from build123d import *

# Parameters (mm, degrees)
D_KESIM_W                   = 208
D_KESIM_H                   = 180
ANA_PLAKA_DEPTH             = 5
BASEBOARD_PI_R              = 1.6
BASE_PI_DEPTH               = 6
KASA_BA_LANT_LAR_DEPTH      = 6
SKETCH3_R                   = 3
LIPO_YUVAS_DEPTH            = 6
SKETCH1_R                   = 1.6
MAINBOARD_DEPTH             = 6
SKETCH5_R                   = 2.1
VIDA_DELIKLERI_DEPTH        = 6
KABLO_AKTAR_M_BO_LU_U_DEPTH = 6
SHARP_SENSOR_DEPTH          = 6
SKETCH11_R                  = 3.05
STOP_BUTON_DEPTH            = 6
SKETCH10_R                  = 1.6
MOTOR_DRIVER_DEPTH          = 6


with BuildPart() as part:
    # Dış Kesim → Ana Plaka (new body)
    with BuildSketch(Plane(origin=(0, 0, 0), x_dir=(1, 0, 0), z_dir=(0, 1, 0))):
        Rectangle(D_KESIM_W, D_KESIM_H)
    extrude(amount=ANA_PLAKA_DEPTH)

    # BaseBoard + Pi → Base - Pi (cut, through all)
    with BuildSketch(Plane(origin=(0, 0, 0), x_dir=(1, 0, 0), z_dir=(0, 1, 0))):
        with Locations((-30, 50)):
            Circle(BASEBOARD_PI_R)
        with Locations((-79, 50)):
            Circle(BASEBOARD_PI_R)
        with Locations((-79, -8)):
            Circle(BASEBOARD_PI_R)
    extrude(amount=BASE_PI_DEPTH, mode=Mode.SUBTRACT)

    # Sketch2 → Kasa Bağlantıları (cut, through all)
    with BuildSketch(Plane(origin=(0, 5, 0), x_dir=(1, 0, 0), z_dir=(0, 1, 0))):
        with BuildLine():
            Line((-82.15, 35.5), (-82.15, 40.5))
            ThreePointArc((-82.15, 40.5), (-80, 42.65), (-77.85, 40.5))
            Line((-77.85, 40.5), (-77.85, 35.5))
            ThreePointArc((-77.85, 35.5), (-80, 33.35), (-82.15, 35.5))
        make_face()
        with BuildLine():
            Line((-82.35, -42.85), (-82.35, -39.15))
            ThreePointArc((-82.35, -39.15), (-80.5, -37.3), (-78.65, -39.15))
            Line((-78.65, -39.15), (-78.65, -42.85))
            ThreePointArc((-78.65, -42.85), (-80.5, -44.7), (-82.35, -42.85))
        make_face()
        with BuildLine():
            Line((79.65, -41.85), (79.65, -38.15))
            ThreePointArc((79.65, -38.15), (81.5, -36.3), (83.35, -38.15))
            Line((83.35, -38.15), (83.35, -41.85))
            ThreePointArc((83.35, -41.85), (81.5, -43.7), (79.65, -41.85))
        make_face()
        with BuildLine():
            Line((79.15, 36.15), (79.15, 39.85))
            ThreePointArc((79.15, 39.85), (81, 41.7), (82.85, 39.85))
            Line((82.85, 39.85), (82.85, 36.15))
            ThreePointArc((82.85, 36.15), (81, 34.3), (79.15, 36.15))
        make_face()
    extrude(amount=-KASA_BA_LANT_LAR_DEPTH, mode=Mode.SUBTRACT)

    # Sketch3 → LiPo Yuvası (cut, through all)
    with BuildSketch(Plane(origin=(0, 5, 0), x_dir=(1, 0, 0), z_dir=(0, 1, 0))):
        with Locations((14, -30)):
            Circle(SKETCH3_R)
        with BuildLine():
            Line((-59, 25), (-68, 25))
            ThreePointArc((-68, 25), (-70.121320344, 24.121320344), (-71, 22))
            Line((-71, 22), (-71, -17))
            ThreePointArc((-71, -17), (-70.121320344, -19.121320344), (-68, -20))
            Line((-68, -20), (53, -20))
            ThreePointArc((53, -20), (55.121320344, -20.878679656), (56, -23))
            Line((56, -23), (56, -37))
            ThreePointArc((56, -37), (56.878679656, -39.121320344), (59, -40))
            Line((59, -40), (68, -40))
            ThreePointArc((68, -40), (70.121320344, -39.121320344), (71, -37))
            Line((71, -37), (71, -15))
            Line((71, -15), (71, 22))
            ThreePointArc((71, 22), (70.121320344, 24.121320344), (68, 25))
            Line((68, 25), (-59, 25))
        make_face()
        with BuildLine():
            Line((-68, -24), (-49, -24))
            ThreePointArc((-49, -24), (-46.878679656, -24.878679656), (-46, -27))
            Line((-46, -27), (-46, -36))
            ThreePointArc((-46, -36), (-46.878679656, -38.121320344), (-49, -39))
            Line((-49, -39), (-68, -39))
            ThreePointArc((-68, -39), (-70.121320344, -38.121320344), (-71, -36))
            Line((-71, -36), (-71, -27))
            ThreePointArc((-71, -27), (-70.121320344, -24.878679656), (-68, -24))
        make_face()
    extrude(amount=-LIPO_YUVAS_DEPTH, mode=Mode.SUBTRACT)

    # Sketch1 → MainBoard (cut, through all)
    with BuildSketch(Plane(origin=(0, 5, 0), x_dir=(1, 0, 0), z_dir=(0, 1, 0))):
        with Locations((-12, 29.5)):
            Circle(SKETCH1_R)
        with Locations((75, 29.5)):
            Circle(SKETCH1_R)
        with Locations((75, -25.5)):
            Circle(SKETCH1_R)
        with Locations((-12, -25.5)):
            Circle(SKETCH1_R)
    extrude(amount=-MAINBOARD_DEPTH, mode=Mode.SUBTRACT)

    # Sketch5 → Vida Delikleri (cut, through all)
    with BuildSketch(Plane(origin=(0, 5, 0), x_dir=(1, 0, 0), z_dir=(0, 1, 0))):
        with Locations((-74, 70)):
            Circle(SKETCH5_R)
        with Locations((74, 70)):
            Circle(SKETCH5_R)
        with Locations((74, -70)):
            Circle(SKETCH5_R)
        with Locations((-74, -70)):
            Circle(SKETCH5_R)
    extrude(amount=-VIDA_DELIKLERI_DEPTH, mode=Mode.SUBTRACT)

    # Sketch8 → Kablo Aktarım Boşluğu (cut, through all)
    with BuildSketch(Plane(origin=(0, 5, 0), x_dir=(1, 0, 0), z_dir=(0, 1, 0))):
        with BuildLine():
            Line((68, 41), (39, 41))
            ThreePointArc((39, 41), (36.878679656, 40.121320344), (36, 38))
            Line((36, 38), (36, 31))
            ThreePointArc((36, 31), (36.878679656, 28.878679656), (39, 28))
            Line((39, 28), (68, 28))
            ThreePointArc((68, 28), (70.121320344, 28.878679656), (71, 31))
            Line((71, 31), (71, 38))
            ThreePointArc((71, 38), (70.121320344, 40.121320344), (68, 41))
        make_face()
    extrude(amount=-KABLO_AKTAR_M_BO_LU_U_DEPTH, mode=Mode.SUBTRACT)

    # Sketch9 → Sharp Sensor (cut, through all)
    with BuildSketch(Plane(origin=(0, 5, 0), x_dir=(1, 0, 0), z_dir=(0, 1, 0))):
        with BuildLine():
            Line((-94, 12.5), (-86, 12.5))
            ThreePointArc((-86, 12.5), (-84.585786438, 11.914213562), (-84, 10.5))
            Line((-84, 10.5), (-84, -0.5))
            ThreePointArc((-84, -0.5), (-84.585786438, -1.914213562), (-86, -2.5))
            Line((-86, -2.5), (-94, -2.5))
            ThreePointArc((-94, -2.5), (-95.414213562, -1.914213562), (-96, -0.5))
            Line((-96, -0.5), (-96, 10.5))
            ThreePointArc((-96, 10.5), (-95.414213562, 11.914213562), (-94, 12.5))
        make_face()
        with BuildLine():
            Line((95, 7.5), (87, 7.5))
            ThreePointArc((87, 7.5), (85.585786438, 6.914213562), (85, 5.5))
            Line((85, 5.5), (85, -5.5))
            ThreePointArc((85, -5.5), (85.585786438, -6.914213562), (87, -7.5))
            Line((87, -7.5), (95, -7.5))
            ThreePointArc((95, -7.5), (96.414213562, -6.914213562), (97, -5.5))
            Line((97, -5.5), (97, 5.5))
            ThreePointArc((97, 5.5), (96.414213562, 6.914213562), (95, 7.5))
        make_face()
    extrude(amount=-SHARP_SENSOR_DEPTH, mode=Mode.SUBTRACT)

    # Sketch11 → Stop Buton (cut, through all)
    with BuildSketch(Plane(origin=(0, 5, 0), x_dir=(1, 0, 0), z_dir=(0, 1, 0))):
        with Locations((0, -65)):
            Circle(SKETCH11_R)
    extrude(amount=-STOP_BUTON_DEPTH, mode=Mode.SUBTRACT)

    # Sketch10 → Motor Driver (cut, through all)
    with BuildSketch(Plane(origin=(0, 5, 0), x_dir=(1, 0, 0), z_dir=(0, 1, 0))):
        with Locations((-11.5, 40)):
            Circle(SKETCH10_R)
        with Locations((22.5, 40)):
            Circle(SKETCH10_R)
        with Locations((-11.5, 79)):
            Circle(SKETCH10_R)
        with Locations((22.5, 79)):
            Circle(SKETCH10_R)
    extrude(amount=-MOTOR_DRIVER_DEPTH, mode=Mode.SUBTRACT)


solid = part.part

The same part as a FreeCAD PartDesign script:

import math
import FreeCAD as App
import Part
import Sketcher


def add_polygon(sketch, points):
    """Adds a closed chain of lines whose ends are joined by coincident constraints."""
    first, n = sketch.GeometryCount, len(points)
    for a, b in zip(points, points[1:] + points[:1]):
        sketch.addGeometry(Part.LineSegment(App.Vector(*a, 0), App.Vector(*b, 0)), False)
    for i in range(n):
        sketch.addConstraint(Sketcher.Constraint("Coincident", first + i, 2, first + (i + 1) % n, 1))

doc = App.newDocument("Part")
params = doc.addObject("Spreadsheet::Sheet", "Params")
for row, (alias, value) in enumerate([
    ("sketch1_width", "208 mm"),
    ("sketch1_height", "180 mm"),
    ("pad1_length", "5 mm"),
    ("sketch2_diameter", "3.2 mm"),
    ("sketch3_height", "5 mm"),
    ("sketch3_radius", "2.15 mm"),
    ("sketch3_radius2", "1.85 mm"),
    ("sketch3_height2", "3.7 mm"),
    ("sketch4_diameter", "6 mm"),
    ("sketch4_width", "121 mm"),
    ("sketch4_width2", "9 mm"),
    ("sketch4_width3", "19 mm"),
    ("sketch4_height", "39 mm"),
    ("sketch5_diameter", "3.2 mm"),
    ("sketch6_diameter", "4.2 mm"),
    ("sketch7_radius", "3 mm"),
    ("sketch7_width", "29 mm"),
    ("sketch7_height", "7 mm"),
    ("sketch8_radius", "2 mm"),
    ("sketch8_width", "8 mm"),
    ("sketch8_height", "11 mm"),
    ("sketch9_diameter", "6.1 mm"),
    ("sketch10_diameter", "3.2 mm"),
], start=1):
    params.set(f"A{row}", alias)
    params.set(f"B{row}", "=" + value)
    params.setAlias(f"B{row}", alias)

body = doc.addObject("PartDesign::Body", "Body")

# Sketch on XZ plane
sketch1 = body.newObject("Sketcher::SketchObject", "Sketch")
sketch1.AttachmentSupport = (doc.getObject("XZ_Plane"), [""])
sketch1.MapMode = "FlatFace"
add_polygon(sketch1, [(-104, -90), (-104, 90), (104, 90), (104, -90)])  # lines 0-3
sketch1.addConstraint([
    Sketcher.Constraint("Vertical", 0),
    Sketcher.Constraint("Horizontal", 1),
    Sketcher.Constraint("Vertical", 2),
    Sketcher.Constraint("Horizontal", 3),
    Sketcher.Constraint("Symmetric", 0, 2, 2, 2, -1, 1),
    Sketcher.Constraint("DistanceX", 1, 1, 1, 2, 208.0),
    Sketcher.Constraint("DistanceY", 0, 1, 0, 2, 180.0),
])
sketch1.setExpression("Constraints[9]", "Params.sketch1_width")
sketch1.setExpression("Constraints[10]", "Params.sketch1_height")
pad1 = body.newObject("PartDesign::Pad", "Pad")
pad1.Profile = sketch1
pad1.setExpression("Length", "Params.pad1_length")
pad1.Reversed = True

# Sketch on XZ plane
sketch2 = body.newObject("Sketcher::SketchObject", "Sketch001")
sketch2.AttachmentSupport = (doc.getObject("XZ_Plane"), [""])
sketch2.MapMode = "FlatFace"
sketch2.addGeometry([
    Part.Circle(App.Vector(-30, -50, 0), App.Vector(0, 0, 1), 1.6),
    Part.Circle(App.Vector(-79, -50, 0), App.Vector(0, 0, 1), 1.6),
    Part.Circle(App.Vector(-79, 8, 0), App.Vector(0, 0, 1), 1.6),
], False)
sketch2.addConstraint([
    Sketcher.Constraint("Equal", 0, 1),
    Sketcher.Constraint("Equal", 1, 2),
    Sketcher.Constraint("Horizontal", 0, 3, 1, 3),
    Sketcher.Constraint("Vertical", 1, 3, 2, 3),
    Sketcher.Constraint("Diameter", 0, 3.2),
    Sketcher.Constraint("DistanceX", 0, 3, -1, 1, 30.0),
    Sketcher.Constraint("DistanceY", 0, 3, -1, 1, 50.0),
    Sketcher.Constraint("DistanceX", 1, 3, -1, 1, 79.0),
    Sketcher.Constraint("DistanceY", -1, 1, 2, 3, 8.0),
])
sketch2.setExpression("Constraints[4]", "Params.sketch2_diameter")
pocket1 = body.newObject("PartDesign::Pocket", "Pocket")
pocket1.Profile = sketch2
pocket1.Type = "ThroughAll"

# Sketch on XZ plane
sketch3 = body.newObject("Sketcher::SketchObject", "Sketch002")
sketch3.AttachmentSupport = (doc.getObject("XZ_Plane"), [""])
sketch3.MapMode = "FlatFace"
sketch3.AttachmentOffset = App.Placement(App.Vector(0, 0, -5), App.Rotation())
sketch3.addGeometry([
    Part.LineSegment(App.Vector(-82.2, -40.5, 0), App.Vector(-82.2, -35.5, 0)),  # 0
    Part.ArcOfCircle(Part.Circle(App.Vector(-80, -35.5, 0), App.Vector(0, 0, 1), 2.1), math.radians(0), math.radians(180)),  # 1
    Part.LineSegment(App.Vector(-77.8, -35.5, 0), App.Vector(-77.8, -40.5, 0)),  # 2
    Part.ArcOfCircle(Part.Circle(App.Vector(-80, -40.5, 0), App.Vector(0, 0, 1), 2.1), math.radians(180), math.radians(360)),  # 3
    Part.LineSegment(App.Vector(-82.3, 39.1, 0), App.Vector(-82.3, 42.9, 0)),  # 4
    Part.ArcOfCircle(Part.Circle(App.Vector(-80.5, 42.9, 0), App.Vector(0, 0, 1), 1.9), math.radians(0), math.radians(180)),  # 5
    Part.LineSegment(App.Vector(-78.7, 42.9, 0), App.Vector(-78.7, 39.1, 0)),  # 6
    Part.ArcOfCircle(Part.Circle(App.Vector(-80.5, 39.1, 0), App.Vector(0, 0, 1), 1.9), math.radians(180), math.radians(360)),  # 7
    Part.LineSegment(App.Vector(79.7, 38.1, 0), App.Vector(79.7, 41.9, 0)),  # 8
    Part.ArcOfCircle(Part.Circle(App.Vector(81.5, 41.9, 0), App.Vector(0, 0, 1), 1.9), math.radians(0), math.radians(180)),  # 9
    Part.LineSegment(App.Vector(83.3, 41.9, 0), App.Vector(83.3, 38.1, 0)),  # 10
    Part.ArcOfCircle(Part.Circle(App.Vector(81.5, 38.1, 0), App.Vector(0, 0, 1), 1.9), math.radians(180), math.radians(360)),  # 11
    Part.LineSegment(App.Vector(79.2, -39.9, 0), App.Vector(79.2, -36.1, 0)),  # 12
    Part.ArcOfCircle(Part.Circle(App.Vector(81, -36.1, 0), App.Vector(0, 0, 1), 1.9), math.radians(0), math.radians(180)),  # 13
    Part.LineSegment(App.Vector(82.8, -36.1, 0), App.Vector(82.8, -39.9, 0)),  # 14
    Part.ArcOfCircle(Part.Circle(App.Vector(81, -39.9, 0), App.Vector(0, 0, 1), 1.9), math.radians(180), math.radians(360)),  # 15
], False)
sketch3.addConstraint([
    Sketcher.Constraint("Tangent", 0, 2, 1, 2),
    Sketcher.Constraint("Tangent", 1, 1, 2, 1),
    Sketcher.Constraint("Tangent", 2, 2, 3, 2),
    Sketcher.Constraint("Tangent", 3, 1, 0, 1),
    Sketcher.Constraint("Tangent", 4, 2, 5, 2),
    Sketcher.Constraint("Tangent", 5, 1, 6, 1),
    Sketcher.Constraint("Tangent", 6, 2, 7, 2),
    Sketcher.Constraint("Tangent", 7, 1, 4, 1),
    Sketcher.Constraint("Tangent", 8, 2, 9, 2),
    Sketcher.Constraint("Tangent", 9, 1, 10, 1),
    Sketcher.Constraint("Tangent", 10, 2, 11, 2),
    Sketcher.Constraint("Tangent", 11, 1, 8, 1),
    Sketcher.Constraint("Tangent", 12, 2, 13, 2),
    Sketcher.Constraint("Tangent", 13, 1, 14, 1),
    Sketcher.Constraint("Tangent", 14, 2, 15, 2),
    Sketcher.Constraint("Tangent", 15, 1, 12, 1),
    Sketcher.Constraint("Vertical", 0),
    Sketcher.Constraint("Vertical", 2),
    Sketcher.Constraint("Vertical", 4),
    Sketcher.Constraint("Vertical", 6),
    Sketcher.Constraint("Vertical", 8),
    Sketcher.Constraint("Vertical", 10),
    Sketcher.Constraint("Vertical", 12),
    Sketcher.Constraint("Vertical", 14),
    Sketcher.Constraint("Equal", 7, 9),
    Sketcher.Constraint("Equal", 11, 13),
    Sketcher.Constraint("Equal", 6, 8),
    Sketcher.Constraint("Equal", 10, 12),
    Sketcher.Constraint("DistanceY", 0, 1, 0, 2, 5.0),
    Sketcher.Constraint("Radius", 1, 2.15),
    Sketcher.Constraint("Radius", 5, 1.85),
    Sketcher.Constraint("DistanceY", 4, 1, 4, 2, 3.7),
    Sketcher.Constraint("DistanceX", 1, 3, -1, 1, 80.0),
    Sketcher.Constraint("DistanceX", -1, 1, 13, 3, 81.0),
    Sketcher.Constraint("DistanceX", 5, 3, 9, 3, 162.0),
    Sketcher.Constraint("DistanceY", 9, 3, 5, 3, 1.0),
    Sketcher.Constraint("DistanceY", 13, 3, 9, 3, 78.0),
    Sketcher.Constraint("DistanceY", 1, 3, -1, 1, 35.5),
    Sketcher.Constraint("DistanceX", 5, 3, -1, 1, 80.5),
    Sketcher.Constraint("DistanceY", -1, 1, 5, 3, 42.85),
])
sketch3.setExpression("Constraints[28]", "Params.sketch3_height")
sketch3.setExpression("Constraints[29]", "Params.sketch3_radius")
sketch3.setExpression("Constraints[30]", "Params.sketch3_radius2")
sketch3.setExpression("Constraints[31]", "Params.sketch3_height2")
pocket2 = body.newObject("PartDesign::Pocket", "Pocket001")
pocket2.Profile = sketch3
pocket2.Type = "ThroughAll"
pocket2.Reversed = True

# Sketch on XZ plane
sketch4 = body.newObject("Sketcher::SketchObject", "Sketch003")
sketch4.AttachmentSupport = (doc.getObject("XZ_Plane"), [""])
sketch4.MapMode = "FlatFace"
sketch4.AttachmentOffset = App.Placement(App.Vector(0, 0, -5), App.Rotation())
sketch4.addGeometry([
    Part.Circle(App.Vector(14, 30, 0), App.Vector(0, 0, 1), 3),  # 0
    Part.ArcOfCircle(Part.Circle(App.Vector(-68, -22, 0), App.Vector(0, 0, 1), 3), math.radians(180), math.radians(270)),  # 1
    Part.LineSegment(App.Vector(-71, -22, 0), App.Vector(-71, 17, 0)),  # 2
    Part.ArcOfCircle(Part.Circle(App.Vector(-68, 17, 0), App.Vector(0, 0, 1), 3), math.radians(90), math.radians(180)),  # 3
    Part.LineSegment(App.Vector(-68, 20, 0), App.Vector(53, 20, 0)),  # 4
    Part.ArcOfCircle(Part.Circle(App.Vector(53, 23, 0), App.Vector(0, 0, 1), 3), math.radians(-90), math.radians(0)),  # 5
    Part.LineSegment(App.Vector(56, 23, 0), App.Vector(56, 37, 0)),  # 6
    Part.ArcOfCircle(Part.Circle(App.Vector(59, 37, 0), App.Vector(0, 0, 1), 3), math.radians(90), math.radians(180)),  # 7
    Part.LineSegment(App.Vector(59, 40, 0), App.Vector(68, 40, 0)),  # 8
    Part.ArcOfCircle(Part.Circle(App.Vector(68, 37, 0), App.Vector(0, 0, 1), 3), math.radians(0), math.radians(90)),  # 9
    Part.LineSegment(App.Vector(71, 37, 0), App.Vector(71, -22, 0)),  # 10
    Part.ArcOfCircle(Part.Circle(App.Vector(68, -22, 0), App.Vector(0, 0, 1), 3), math.radians(-90), math.radians(0)),  # 11
    Part.LineSegment(App.Vector(68, -25, 0), App.Vector(-68, -25, 0)),  # 12
    Part.LineSegment(App.Vector(-49, 24, 0), App.Vector(-68, 24, 0)),  # 13
    Part.ArcOfCircle(Part.Circle(App.Vector(-68, 27, 0), App.Vector(0, 0, 1), 3), math.radians(180), math.radians(270)),  # 14
    Part.LineSegment(App.Vector(-71, 27, 0), App.Vector(-71, 36, 0)),  # 15
    Part.ArcOfCircle(Part.Circle(App.Vector(-68, 36, 0), App.Vector(0, 0, 1), 3), math.radians(90), math.radians(180)),  # 16
    Part.LineSegment(App.Vector(-68, 39, 0), App.Vector(-49, 39, 0)),  # 17
    Part.ArcOfCircle(Part.Circle(App.Vector(-49, 36, 0), App.Vector(0, 0, 1), 3), math.radians(0), math.radians(90)),  # 18
    Part.LineSegment(App.Vector(-46, 36, 0), App.Vector(-46, 27, 0)),  # 19
    Part.ArcOfCircle(Part.Circle(App.Vector(-49, 27, 0), App.Vector(0, 0, 1), 3), math.radians(-90), math.radians(0)),  # 20
], False)
sketch4.addConstraint([
    Sketcher.Constraint("Tangent", 1, 1, 2, 1),
    Sketcher.Constraint("Tangent", 2, 2, 3, 2),
    Sketcher.Constraint("Tangent", 3, 1, 4, 1),
    Sketcher.Constraint("Tangent", 4, 2, 5, 1),
    Sketcher.Constraint("Tangent", 5, 2, 6, 1),
    Sketcher.Constraint("Tangent", 6, 2, 7, 2),
    Sketcher.Constraint("Tangent", 7, 1, 8, 1),
    Sketcher.Constraint("Tangent", 8, 2, 9, 2),
    Sketcher.Constraint("Tangent", 9, 1, 10, 1),
    Sketcher.Constraint("Tangent", 10, 2, 11, 2),
    Sketcher.Constraint("Tangent", 11, 1, 12, 1),
    Sketcher.Constraint("Tangent", 12, 2, 1, 2),
    Sketcher.Constraint("Tangent", 13, 2, 14, 2),
    Sketcher.Constraint("Tangent", 14, 1, 15, 1),
    Sketcher.Constraint("Tangent", 15, 2, 16, 2),
    Sketcher.Constraint("Tangent", 16, 1, 17, 1),
    Sketcher.Constraint("Tangent", 17, 2, 18, 2),
    Sketcher.Constraint("Tangent", 18, 1, 19, 1),
    Sketcher.Constraint("Tangent", 19, 2, 20, 2),
    Sketcher.Constraint("Tangent", 20, 1, 13, 1),
    Sketcher.Constraint("Vertical", 2),
    Sketcher.Constraint("Horizontal", 4),
    Sketcher.Constraint("Vertical", 6),
    Sketcher.Constraint("Horizontal", 8),
    Sketcher.Constraint("Vertical", 10),
    Sketcher.Constraint("Horizontal", 12),
    Sketcher.Constraint("Horizontal", 13),
    Sketcher.Constraint("Vertical", 15),
    Sketcher.Constraint("Horizontal", 17),
    Sketcher.Constraint("Vertical", 19),
    Sketcher.Constraint("Equal", 0, 1),
    Sketcher.Constraint("Equal", 1, 3),
    Sketcher.Constraint("Equal", 3, 5),
    Sketcher.Constraint("Equal", 5, 7),
    Sketcher.Constraint("Equal", 7, 9),
    Sketcher.Constraint("Equal", 9, 11),
    Sketcher.Constraint("Equal", 11, 14),
    Sketcher.Constraint("Equal", 14, 16),
    Sketcher.Constraint("Equal", 16, 18),
    Sketcher.Constraint("Equal", 18, 20),
    Sketcher.Constraint("Vertical", 3, 3, 14, 3),
    Sketcher.Constraint("Equal", 8, 15),
    Sketcher.Constraint("Diameter", 0, 6.0),
    Sketcher.Constraint("DistanceX", 4, 1, 4, 2, 121.0),
    Sketcher.Constraint("DistanceX", 8, 1, 8, 2, 9.0),
    Sketcher.Constraint("DistanceX", 13, 2, 13, 1, 19.0),
    Sketcher.Constraint("DistanceY", 2, 1, 2, 2, 39.0),
    Sketcher.Constraint("DistanceY", 6, 1, 6, 2, 14.0),
    Sketcher.Constraint("DistanceX", -1, 1, 0, 3, 14.0),
    Sketcher.Constraint("DistanceY", -1, 1, 0, 3, 30.0),
    Sketcher.Constraint("DistanceX", 1, 3, -1, 1, 68.0),
    Sketcher.Constraint("DistanceY", 1, 3, -1, 1, 22.0),
    Sketcher.Constraint("DistanceY", -1, 1, 14, 3, 27.0),
])
sketch4.setExpression("Constraints[42]", "Params.sketch4_diameter")
sketch4.setExpression("Constraints[43]", "Params.sketch4_width")
sketch4.setExpression("Constraints[44]", "Params.sketch4_width2")
sketch4.setExpression("Constraints[45]", "Params.sketch4_width3")
sketch4.setExpression("Constraints[46]", "Params.sketch4_height")
pocket3 = body.newObject("PartDesign::Pocket", "Pocket002")
pocket3.Profile = sketch4
pocket3.Type = "ThroughAll"
pocket3.Reversed = True

# Sketch on XZ plane
sketch5 = body.newObject("Sketcher::SketchObject", "Sketch004")
sketch5.AttachmentSupport = (doc.getObject("XZ_Plane"), [""])
sketch5.MapMode = "FlatFace"
sketch5.AttachmentOffset = App.Placement(App.Vector(0, 0, -5), App.Rotation())
sketch5.addGeometry([
    Part.Circle(App.Vector(-12, -29.5, 0), App.Vector(0, 0, 1), 1.6),
    Part.Circle(App.Vector(75, -29.5, 0), App.Vector(0, 0, 1), 1.6),
    Part.Circle(App.Vector(75, 25.5, 0), App.Vector(0, 0, 1), 1.6),
    Part.Circle(App.Vector(-12, 25.5, 0), App.Vector(0, 0, 1), 1.6),
], False)
sketch5.addConstraint([
    Sketcher.Constraint("Equal", 0, 1),
    Sketcher.Constraint("Equal", 1, 2),
    Sketcher.Constraint("Equal", 2, 3),
    Sketcher.Constraint("Horizontal", 0, 3, 1, 3),
    Sketcher.Constraint("Horizontal", 2, 3, 3, 3),
    Sketcher.Constraint("Vertical", 1, 3, 2, 3),
    Sketcher.Constraint("Vertical", 0, 3, 3, 3),
    Sketcher.Constraint("Diameter", 0, 3.2),
    Sketcher.Constraint("DistanceX", 0, 3, -1, 1, 12.0),
    Sketcher.Constraint("DistanceX", -1, 1, 1, 3, 75.0),
    Sketcher.Constraint("DistanceY", 1, 3, 2, 3, 55.0),
    Sketcher.Constraint("DistanceY", 0, 3, -1, 1, 29.5),
])
sketch5.setExpression("Constraints[7]", "Params.sketch5_diameter")
pocket4 = body.newObject("PartDesign::Pocket", "Pocket003")
pocket4.Profile = sketch5
pocket4.Type = "ThroughAll"
pocket4.Reversed = True

# Sketch on XZ plane
sketch6 = body.newObject("Sketcher::SketchObject", "Sketch005")
sketch6.AttachmentSupport = (doc.getObject("XZ_Plane"), [""])
sketch6.MapMode = "FlatFace"
sketch6.AttachmentOffset = App.Placement(App.Vector(0, 0, -5), App.Rotation())
sketch6.addGeometry([
    Part.Circle(App.Vector(-74, -70, 0), App.Vector(0, 0, 1), 2.1),
    Part.Circle(App.Vector(74, -70, 0), App.Vector(0, 0, 1), 2.1),
    Part.Circle(App.Vector(74, 70, 0), App.Vector(0, 0, 1), 2.1),
    Part.Circle(App.Vector(-74, 70, 0), App.Vector(0, 0, 1), 2.1),
], False)
sketch6.addConstraint([
    Sketcher.Constraint("Equal", 0, 1),
    Sketcher.Constraint("Equal", 1, 2),
    Sketcher.Constraint("Equal", 2, 3),
    Sketcher.Constraint("Symmetric", 0, 3, 2, 3, -1, 1),
    Sketcher.Constraint("Symmetric", 1, 3, 3, 3, -1, 1),
    Sketcher.Constraint("Symmetric", 0, 3, 1, 3, -2),
    Sketcher.Constraint("Diameter", 0, 4.2),
    Sketcher.Constraint("DistanceX", 0, 3, -1, 1, 74.0),
    Sketcher.Constraint("DistanceY", 0, 3, -1, 1, 70.0),
])
sketch6.setExpression("Constraints[6]", "Params.sketch6_diameter")
pocket5 = body.newObject("PartDesign::Pocket", "Pocket004")
pocket5.Profile = sketch6
pocket5.Type = "ThroughAll"
pocket5.Reversed = True

# Sketch on XZ plane
sketch7 = body.newObject("Sketcher::SketchObject", "Sketch006")
sketch7.AttachmentSupport = (doc.getObject("XZ_Plane"), [""])
sketch7.MapMode = "FlatFace"
sketch7.AttachmentOffset = App.Placement(App.Vector(0, 0, -5), App.Rotation())
sketch7.addGeometry([
    Part.LineSegment(App.Vector(68, -41, 0), App.Vector(39, -41, 0)),  # 0
    Part.ArcOfCircle(Part.Circle(App.Vector(39, -38, 0), App.Vector(0, 0, 1), 3), math.radians(180), math.radians(270)),  # 1
    Part.LineSegment(App.Vector(36, -38, 0), App.Vector(36, -31, 0)),  # 2
    Part.ArcOfCircle(Part.Circle(App.Vector(39, -31, 0), App.Vector(0, 0, 1), 3), math.radians(90), math.radians(180)),  # 3
    Part.LineSegment(App.Vector(39, -28, 0), App.Vector(68, -28, 0)),  # 4
    Part.ArcOfCircle(Part.Circle(App.Vector(68, -31, 0), App.Vector(0, 0, 1), 3), math.radians(0), math.radians(90)),  # 5
    Part.LineSegment(App.Vector(71, -31, 0), App.Vector(71, -38, 0)),  # 6
    Part.ArcOfCircle(Part.Circle(App.Vector(68, -38, 0), App.Vector(0, 0, 1), 3), math.radians(-90), math.radians(0)),  # 7
], False)
sketch7.addConstraint([
    Sketcher.Constraint("Tangent", 0, 2, 1, 2),
    Sketcher.Constraint("Tangent", 1, 1, 2, 1),
    Sketcher.Constraint("Tangent", 2, 2, 3, 2),
    Sketcher.Constraint("Tangent", 3, 1, 4, 1),
    Sketcher.Constraint("Tangent", 4, 2, 5, 2),
    Sketcher.Constraint("Tangent", 5, 1, 6, 1),
    Sketcher.Constraint("Tangent", 6, 2, 7, 2),
    Sketcher.Constraint("Tangent", 7, 1, 0, 1),
    Sketcher.Constraint("Horizontal", 0),
    Sketcher.Constraint("Vertical", 2),
    Sketcher.Constraint("Horizontal", 4),
    Sketcher.Constraint("Vertical", 6),
    Sketcher.Constraint("Equal", 1, 3),
    Sketcher.Constraint("Equal", 3, 5),
    Sketcher.Constraint("Equal", 5, 7),
    Sketcher.Constraint("Radius", 1, 3.0),
    Sketcher.Constraint("DistanceX", 0, 2, 0, 1, 29.0),
    Sketcher.Constraint("DistanceY", 2, 1, 2, 2, 7.0),
    Sketcher.Constraint("DistanceX", -1, 1, 1, 3, 39.0),
    Sketcher.Constraint("DistanceY", 1, 3, -1, 1, 38.0),
])
sketch7.setExpression("Constraints[15]", "Params.sketch7_radius")
sketch7.setExpression("Constraints[16]", "Params.sketch7_width")
sketch7.setExpression("Constraints[17]", "Params.sketch7_height")
pocket6 = body.newObject("PartDesign::Pocket", "Pocket005")
pocket6.Profile = sketch7
pocket6.Type = "ThroughAll"
pocket6.Reversed = True

# Sketch on XZ plane
sketch8 = body.newObject("Sketcher::SketchObject", "Sketch007")
sketch8.AttachmentSupport = (doc.getObject("XZ_Plane"), [""])
sketch8.MapMode = "FlatFace"
sketch8.AttachmentOffset = App.Placement(App.Vector(0, 0, -5), App.Rotation())
sketch8.addGeometry([
    Part.LineSegment(App.Vector(-86, -12.5, 0), App.Vector(-94, -12.5, 0)),  # 0
    Part.ArcOfCircle(Part.Circle(App.Vector(-94, -10.5, 0), App.Vector(0, 0, 1), 2), math.radians(-180), math.radians(-90)),  # 1
    Part.LineSegment(App.Vector(-96, -10.5, 0), App.Vector(-96, 0.5, 0)),  # 2
    Part.ArcOfCircle(Part.Circle(App.Vector(-94, 0.5, 0), App.Vector(0, 0, 1), 2), math.radians(90), math.radians(180)),  # 3
    Part.LineSegment(App.Vector(-94, 2.5, 0), App.Vector(-86, 2.5, 0)),  # 4
    Part.ArcOfCircle(Part.Circle(App.Vector(-86, 0.5, 0), App.Vector(0, 0, 1), 2), math.radians(0), math.radians(90)),  # 5
    Part.LineSegment(App.Vector(-84, 0.5, 0), App.Vector(-84, -10.5, 0)),  # 6
    Part.ArcOfCircle(Part.Circle(App.Vector(-86, -10.5, 0), App.Vector(0, 0, 1), 2), math.radians(-90), math.radians(0)),  # 7
    Part.LineSegment(App.Vector(95, -7.5, 0), App.Vector(87, -7.5, 0)),  # 8
    Part.ArcOfCircle(Part.Circle(App.Vector(87, -5.5, 0), App.Vector(0, 0, 1), 2), math.radians(-180), math.radians(-90)),  # 9
    Part.LineSegment(App.Vector(85, -5.5, 0), App.Vector(85, 5.5, 0)),  # 10
    Part.ArcOfCircle(Part.Circle(App.Vector(87, 5.5, 0), App.Vector(0, 0, 1), 2), math.radians(90), math.radians(180)),  # 11
    Part.LineSegment(App.Vector(87, 7.5, 0), App.Vector(95, 7.5, 0)),  # 12
    Part.ArcOfCircle(Part.Circle(App.Vector(95, 5.5, 0), App.Vector(0, 0, 1), 2), math.radians(0), math.radians(90)),  # 13
    Part.LineSegment(App.Vector(97, 5.5, 0), App.Vector(97, -5.5, 0)),  # 14
    Part.ArcOfCircle(Part.Circle(App.Vector(95, -5.5, 0), App.Vector(0, 0, 1), 2), math.radians(-90), math.radians(0)),  # 15
], False)
sketch8.addConstraint([
    Sketcher.Constraint("Tangent", 0, 2, 1, 2),
    Sketcher.Constraint("Tangent", 1, 1, 2, 1),
    Sketcher.Constraint("Tangent", 2, 2, 3, 2),
    Sketcher.Constraint("Tangent", 3, 1, 4, 1),
    Sketcher.Constraint("Tangent", 4, 2, 5, 2),
    Sketcher.Constraint("Tangent", 5, 1, 6, 1),
    Sketcher.Constraint("Tangent", 6, 2, 7, 2),
    Sketcher.Constraint("Tangent", 7, 1, 0, 1),
    Sketcher.Constraint("Tangent", 8, 2, 9, 2),
    Sketcher.Constraint("Tangent", 9, 1, 10, 1),
    Sketcher.Constraint("Tangent", 10, 2, 11, 2),
    Sketcher.Constraint("Tangent", 11, 1, 12, 1),
    Sketcher.Constraint("Tangent", 12, 2, 13, 2),
    Sketcher.Constraint("Tangent", 13, 1, 14, 1),
    Sketcher.Constraint("Tangent", 14, 2, 15, 2),
    Sketcher.Constraint("Tangent", 15, 1, 8, 1),
    Sketcher.Constraint("Horizontal", 0),
    Sketcher.Constraint("Vertical", 2),
    Sketcher.Constraint("Horizontal", 4),
    Sketcher.Constraint("Vertical", 6),
    Sketcher.Constraint("Horizontal", 8),
    Sketcher.Constraint("Vertical", 10),
    Sketcher.Constraint("Horizontal", 12),
    Sketcher.Constraint("Vertical", 14),
    Sketcher.Constraint("Equal", 1, 3),
    Sketcher.Constraint("Equal", 3, 5),
    Sketcher.Constraint("Equal", 5, 7),
    Sketcher.Constraint("Equal", 7, 9),
    Sketcher.Constraint("Equal", 9, 11),
    Sketcher.Constraint("Equal", 11, 13),
    Sketcher.Constraint("Equal", 13, 15),
    Sketcher.Constraint("Equal", 4, 8),
    Sketcher.Constraint("Equal", 6, 10),
    Sketcher.Constraint("Radius", 1, 2.0),
    Sketcher.Constraint("DistanceX", 0, 2, 0, 1, 8.0),
    Sketcher.Constraint("DistanceY", 2, 1, 2, 2, 11.0),
    Sketcher.Constraint("DistanceX", 1, 3, -1, 1, 94.0),
    Sketcher.Constraint("DistanceX", -1, 1, 9, 3, 87.0),
    Sketcher.Constraint("DistanceY", 7, 3, 9, 3, 5.0),
    Sketcher.Constraint("DistanceY", 1, 3, -1, 1, 10.5),
])
sketch8.setExpression("Constraints[33]", "Params.sketch8_radius")
sketch8.setExpression("Constraints[34]", "Params.sketch8_width")
sketch8.setExpression("Constraints[35]", "Params.sketch8_height")
pocket7 = body.newObject("PartDesign::Pocket", "Pocket006")
pocket7.Profile = sketch8
pocket7.Type = "ThroughAll"
pocket7.Reversed = True

# Sketch on XZ plane
sketch9 = body.newObject("Sketcher::SketchObject", "Sketch008")
sketch9.AttachmentSupport = (doc.getObject("XZ_Plane"), [""])
sketch9.MapMode = "FlatFace"
sketch9.AttachmentOffset = App.Placement(App.Vector(0, 0, -5), App.Rotation())
sketch9.addGeometry(Part.Circle(App.Vector(0, 65, 0), App.Vector(0, 0, 1), 3), False)
sketch9.addConstraint([
    Sketcher.Constraint("PointOnObject", 0, 3, -2),
    Sketcher.Constraint("Diameter", 0, 6.1),
    Sketcher.Constraint("DistanceY", -1, 1, 0, 3, 65.0),
])
sketch9.setExpression("Constraints[1]", "Params.sketch9_diameter")
pocket8 = body.newObject("PartDesign::Pocket", "Pocket007")
pocket8.Profile = sketch9
pocket8.Type = "ThroughAll"
pocket8.Reversed = True

# Sketch on XZ plane
sketch10 = body.newObject("Sketcher::SketchObject", "Sketch009")
sketch10.AttachmentSupport = (doc.getObject("XZ_Plane"), [""])
sketch10.MapMode = "FlatFace"
sketch10.AttachmentOffset = App.Placement(App.Vector(0, 0, -5), App.Rotation())
sketch10.addGeometry([
    Part.Circle(App.Vector(-11.5, -40, 0), App.Vector(0, 0, 1), 1.6),
    Part.Circle(App.Vector(22.5, -40, 0), App.Vector(0, 0, 1), 1.6),
    Part.Circle(App.Vector(-11.5, -79, 0), App.Vector(0, 0, 1), 1.6),
    Part.Circle(App.Vector(22.5, -79, 0), App.Vector(0, 0, 1), 1.6),
], False)
sketch10.addConstraint([
    Sketcher.Constraint("Equal", 0, 1),
    Sketcher.Constraint("Equal", 1, 2),
    Sketcher.Constraint("Equal", 2, 3),
    Sketcher.Constraint("Horizontal", 0, 3, 1, 3),
    Sketcher.Constraint("Horizontal", 2, 3, 3, 3),
    Sketcher.Constraint("Vertical", 0, 3, 2, 3),
    Sketcher.Constraint("Vertical", 1, 3, 3, 3),
    Sketcher.Constraint("Diameter", 0, 3.2),
    Sketcher.Constraint("DistanceY", 0, 3, -1, 1, 40.0),
    Sketcher.Constraint("DistanceY", 2, 3, -1, 1, 79.0),
    Sketcher.Constraint("DistanceX", 0, 3, 1, 3, 34.0),
    Sketcher.Constraint("DistanceX", 0, 3, -1, 1, 11.5),
])
sketch10.setExpression("Constraints[7]", "Params.sketch10_diameter")
pocket9 = body.newObject("PartDesign::Pocket", "Pocket008")
pocket9.Profile = sketch10
pocket9.Type = "ThroughAll"
pocket9.Reversed = True

doc.recompute()
